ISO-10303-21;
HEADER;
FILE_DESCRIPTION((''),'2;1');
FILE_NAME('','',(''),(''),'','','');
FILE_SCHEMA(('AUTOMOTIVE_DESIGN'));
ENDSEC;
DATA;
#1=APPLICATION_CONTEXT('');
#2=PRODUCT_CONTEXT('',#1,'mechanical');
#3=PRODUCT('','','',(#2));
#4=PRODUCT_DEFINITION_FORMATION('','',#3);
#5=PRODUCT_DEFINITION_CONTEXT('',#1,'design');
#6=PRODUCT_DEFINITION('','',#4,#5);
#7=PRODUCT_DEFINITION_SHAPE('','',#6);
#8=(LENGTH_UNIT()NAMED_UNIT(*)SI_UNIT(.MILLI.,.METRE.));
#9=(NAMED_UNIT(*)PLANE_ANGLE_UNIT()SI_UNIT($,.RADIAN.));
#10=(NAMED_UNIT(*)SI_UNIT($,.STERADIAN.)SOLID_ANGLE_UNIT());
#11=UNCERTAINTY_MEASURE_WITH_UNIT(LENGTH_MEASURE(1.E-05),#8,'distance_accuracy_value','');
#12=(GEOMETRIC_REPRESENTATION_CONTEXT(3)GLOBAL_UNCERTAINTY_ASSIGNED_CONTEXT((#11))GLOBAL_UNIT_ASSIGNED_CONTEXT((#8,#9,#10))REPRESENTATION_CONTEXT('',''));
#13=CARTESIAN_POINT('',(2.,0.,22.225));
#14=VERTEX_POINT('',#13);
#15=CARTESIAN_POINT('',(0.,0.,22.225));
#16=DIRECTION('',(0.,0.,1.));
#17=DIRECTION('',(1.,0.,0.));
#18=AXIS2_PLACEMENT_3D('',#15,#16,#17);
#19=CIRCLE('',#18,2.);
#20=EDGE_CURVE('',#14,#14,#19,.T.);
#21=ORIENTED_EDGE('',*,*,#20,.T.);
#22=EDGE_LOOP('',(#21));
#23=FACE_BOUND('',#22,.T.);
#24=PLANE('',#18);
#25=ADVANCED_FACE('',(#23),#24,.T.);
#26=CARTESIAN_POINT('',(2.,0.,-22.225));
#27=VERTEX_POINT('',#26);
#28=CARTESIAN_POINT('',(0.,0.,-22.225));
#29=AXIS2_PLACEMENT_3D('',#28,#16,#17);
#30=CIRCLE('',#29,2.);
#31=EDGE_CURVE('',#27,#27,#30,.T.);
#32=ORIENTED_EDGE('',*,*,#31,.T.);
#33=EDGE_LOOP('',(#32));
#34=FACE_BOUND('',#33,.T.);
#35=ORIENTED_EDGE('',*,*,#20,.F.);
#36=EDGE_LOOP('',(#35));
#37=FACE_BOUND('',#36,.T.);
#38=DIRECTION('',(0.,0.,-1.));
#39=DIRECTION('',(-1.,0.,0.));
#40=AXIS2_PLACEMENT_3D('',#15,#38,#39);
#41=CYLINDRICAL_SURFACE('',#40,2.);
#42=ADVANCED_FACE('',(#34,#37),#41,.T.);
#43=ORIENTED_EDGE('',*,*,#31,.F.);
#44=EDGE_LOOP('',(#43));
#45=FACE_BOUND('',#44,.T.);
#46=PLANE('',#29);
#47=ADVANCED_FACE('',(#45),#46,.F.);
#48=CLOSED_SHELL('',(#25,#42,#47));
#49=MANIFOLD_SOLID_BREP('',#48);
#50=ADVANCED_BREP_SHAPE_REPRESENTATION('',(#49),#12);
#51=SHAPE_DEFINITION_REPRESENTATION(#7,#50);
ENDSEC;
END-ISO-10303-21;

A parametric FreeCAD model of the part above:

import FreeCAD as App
import Part
import Sketcher
Q = App.Units.Quantity

doc = App.newDocument("Part")
body = doc.addObject("PartDesign::Body", "Body")

# Sketch on XY plane
sketch1 = body.newObject("Sketcher::SketchObject", "Sketch")
sketch1.AttachmentSupport = (doc.getObject("XY_Plane"), [""])
sketch1.MapMode = "FlatFace"
sketch1.addGeometry(Part.Circle(App.Vector(0, 0, 0), App.Vector(0, 0, 1), 2), False)
sketch1.addConstraint(Sketcher.Constraint("Coincident", 0, 3, -1, 1))
sketch1.addConstraint(Sketcher.Constraint("Diameter", 0, Q("4 mm")))
pad1 = body.newObject("PartDesign::Pad", "Pad")
pad1.Profile = sketch1
pad1.Length = 44.45
pad1.Midplane = True

doc.recompute()
